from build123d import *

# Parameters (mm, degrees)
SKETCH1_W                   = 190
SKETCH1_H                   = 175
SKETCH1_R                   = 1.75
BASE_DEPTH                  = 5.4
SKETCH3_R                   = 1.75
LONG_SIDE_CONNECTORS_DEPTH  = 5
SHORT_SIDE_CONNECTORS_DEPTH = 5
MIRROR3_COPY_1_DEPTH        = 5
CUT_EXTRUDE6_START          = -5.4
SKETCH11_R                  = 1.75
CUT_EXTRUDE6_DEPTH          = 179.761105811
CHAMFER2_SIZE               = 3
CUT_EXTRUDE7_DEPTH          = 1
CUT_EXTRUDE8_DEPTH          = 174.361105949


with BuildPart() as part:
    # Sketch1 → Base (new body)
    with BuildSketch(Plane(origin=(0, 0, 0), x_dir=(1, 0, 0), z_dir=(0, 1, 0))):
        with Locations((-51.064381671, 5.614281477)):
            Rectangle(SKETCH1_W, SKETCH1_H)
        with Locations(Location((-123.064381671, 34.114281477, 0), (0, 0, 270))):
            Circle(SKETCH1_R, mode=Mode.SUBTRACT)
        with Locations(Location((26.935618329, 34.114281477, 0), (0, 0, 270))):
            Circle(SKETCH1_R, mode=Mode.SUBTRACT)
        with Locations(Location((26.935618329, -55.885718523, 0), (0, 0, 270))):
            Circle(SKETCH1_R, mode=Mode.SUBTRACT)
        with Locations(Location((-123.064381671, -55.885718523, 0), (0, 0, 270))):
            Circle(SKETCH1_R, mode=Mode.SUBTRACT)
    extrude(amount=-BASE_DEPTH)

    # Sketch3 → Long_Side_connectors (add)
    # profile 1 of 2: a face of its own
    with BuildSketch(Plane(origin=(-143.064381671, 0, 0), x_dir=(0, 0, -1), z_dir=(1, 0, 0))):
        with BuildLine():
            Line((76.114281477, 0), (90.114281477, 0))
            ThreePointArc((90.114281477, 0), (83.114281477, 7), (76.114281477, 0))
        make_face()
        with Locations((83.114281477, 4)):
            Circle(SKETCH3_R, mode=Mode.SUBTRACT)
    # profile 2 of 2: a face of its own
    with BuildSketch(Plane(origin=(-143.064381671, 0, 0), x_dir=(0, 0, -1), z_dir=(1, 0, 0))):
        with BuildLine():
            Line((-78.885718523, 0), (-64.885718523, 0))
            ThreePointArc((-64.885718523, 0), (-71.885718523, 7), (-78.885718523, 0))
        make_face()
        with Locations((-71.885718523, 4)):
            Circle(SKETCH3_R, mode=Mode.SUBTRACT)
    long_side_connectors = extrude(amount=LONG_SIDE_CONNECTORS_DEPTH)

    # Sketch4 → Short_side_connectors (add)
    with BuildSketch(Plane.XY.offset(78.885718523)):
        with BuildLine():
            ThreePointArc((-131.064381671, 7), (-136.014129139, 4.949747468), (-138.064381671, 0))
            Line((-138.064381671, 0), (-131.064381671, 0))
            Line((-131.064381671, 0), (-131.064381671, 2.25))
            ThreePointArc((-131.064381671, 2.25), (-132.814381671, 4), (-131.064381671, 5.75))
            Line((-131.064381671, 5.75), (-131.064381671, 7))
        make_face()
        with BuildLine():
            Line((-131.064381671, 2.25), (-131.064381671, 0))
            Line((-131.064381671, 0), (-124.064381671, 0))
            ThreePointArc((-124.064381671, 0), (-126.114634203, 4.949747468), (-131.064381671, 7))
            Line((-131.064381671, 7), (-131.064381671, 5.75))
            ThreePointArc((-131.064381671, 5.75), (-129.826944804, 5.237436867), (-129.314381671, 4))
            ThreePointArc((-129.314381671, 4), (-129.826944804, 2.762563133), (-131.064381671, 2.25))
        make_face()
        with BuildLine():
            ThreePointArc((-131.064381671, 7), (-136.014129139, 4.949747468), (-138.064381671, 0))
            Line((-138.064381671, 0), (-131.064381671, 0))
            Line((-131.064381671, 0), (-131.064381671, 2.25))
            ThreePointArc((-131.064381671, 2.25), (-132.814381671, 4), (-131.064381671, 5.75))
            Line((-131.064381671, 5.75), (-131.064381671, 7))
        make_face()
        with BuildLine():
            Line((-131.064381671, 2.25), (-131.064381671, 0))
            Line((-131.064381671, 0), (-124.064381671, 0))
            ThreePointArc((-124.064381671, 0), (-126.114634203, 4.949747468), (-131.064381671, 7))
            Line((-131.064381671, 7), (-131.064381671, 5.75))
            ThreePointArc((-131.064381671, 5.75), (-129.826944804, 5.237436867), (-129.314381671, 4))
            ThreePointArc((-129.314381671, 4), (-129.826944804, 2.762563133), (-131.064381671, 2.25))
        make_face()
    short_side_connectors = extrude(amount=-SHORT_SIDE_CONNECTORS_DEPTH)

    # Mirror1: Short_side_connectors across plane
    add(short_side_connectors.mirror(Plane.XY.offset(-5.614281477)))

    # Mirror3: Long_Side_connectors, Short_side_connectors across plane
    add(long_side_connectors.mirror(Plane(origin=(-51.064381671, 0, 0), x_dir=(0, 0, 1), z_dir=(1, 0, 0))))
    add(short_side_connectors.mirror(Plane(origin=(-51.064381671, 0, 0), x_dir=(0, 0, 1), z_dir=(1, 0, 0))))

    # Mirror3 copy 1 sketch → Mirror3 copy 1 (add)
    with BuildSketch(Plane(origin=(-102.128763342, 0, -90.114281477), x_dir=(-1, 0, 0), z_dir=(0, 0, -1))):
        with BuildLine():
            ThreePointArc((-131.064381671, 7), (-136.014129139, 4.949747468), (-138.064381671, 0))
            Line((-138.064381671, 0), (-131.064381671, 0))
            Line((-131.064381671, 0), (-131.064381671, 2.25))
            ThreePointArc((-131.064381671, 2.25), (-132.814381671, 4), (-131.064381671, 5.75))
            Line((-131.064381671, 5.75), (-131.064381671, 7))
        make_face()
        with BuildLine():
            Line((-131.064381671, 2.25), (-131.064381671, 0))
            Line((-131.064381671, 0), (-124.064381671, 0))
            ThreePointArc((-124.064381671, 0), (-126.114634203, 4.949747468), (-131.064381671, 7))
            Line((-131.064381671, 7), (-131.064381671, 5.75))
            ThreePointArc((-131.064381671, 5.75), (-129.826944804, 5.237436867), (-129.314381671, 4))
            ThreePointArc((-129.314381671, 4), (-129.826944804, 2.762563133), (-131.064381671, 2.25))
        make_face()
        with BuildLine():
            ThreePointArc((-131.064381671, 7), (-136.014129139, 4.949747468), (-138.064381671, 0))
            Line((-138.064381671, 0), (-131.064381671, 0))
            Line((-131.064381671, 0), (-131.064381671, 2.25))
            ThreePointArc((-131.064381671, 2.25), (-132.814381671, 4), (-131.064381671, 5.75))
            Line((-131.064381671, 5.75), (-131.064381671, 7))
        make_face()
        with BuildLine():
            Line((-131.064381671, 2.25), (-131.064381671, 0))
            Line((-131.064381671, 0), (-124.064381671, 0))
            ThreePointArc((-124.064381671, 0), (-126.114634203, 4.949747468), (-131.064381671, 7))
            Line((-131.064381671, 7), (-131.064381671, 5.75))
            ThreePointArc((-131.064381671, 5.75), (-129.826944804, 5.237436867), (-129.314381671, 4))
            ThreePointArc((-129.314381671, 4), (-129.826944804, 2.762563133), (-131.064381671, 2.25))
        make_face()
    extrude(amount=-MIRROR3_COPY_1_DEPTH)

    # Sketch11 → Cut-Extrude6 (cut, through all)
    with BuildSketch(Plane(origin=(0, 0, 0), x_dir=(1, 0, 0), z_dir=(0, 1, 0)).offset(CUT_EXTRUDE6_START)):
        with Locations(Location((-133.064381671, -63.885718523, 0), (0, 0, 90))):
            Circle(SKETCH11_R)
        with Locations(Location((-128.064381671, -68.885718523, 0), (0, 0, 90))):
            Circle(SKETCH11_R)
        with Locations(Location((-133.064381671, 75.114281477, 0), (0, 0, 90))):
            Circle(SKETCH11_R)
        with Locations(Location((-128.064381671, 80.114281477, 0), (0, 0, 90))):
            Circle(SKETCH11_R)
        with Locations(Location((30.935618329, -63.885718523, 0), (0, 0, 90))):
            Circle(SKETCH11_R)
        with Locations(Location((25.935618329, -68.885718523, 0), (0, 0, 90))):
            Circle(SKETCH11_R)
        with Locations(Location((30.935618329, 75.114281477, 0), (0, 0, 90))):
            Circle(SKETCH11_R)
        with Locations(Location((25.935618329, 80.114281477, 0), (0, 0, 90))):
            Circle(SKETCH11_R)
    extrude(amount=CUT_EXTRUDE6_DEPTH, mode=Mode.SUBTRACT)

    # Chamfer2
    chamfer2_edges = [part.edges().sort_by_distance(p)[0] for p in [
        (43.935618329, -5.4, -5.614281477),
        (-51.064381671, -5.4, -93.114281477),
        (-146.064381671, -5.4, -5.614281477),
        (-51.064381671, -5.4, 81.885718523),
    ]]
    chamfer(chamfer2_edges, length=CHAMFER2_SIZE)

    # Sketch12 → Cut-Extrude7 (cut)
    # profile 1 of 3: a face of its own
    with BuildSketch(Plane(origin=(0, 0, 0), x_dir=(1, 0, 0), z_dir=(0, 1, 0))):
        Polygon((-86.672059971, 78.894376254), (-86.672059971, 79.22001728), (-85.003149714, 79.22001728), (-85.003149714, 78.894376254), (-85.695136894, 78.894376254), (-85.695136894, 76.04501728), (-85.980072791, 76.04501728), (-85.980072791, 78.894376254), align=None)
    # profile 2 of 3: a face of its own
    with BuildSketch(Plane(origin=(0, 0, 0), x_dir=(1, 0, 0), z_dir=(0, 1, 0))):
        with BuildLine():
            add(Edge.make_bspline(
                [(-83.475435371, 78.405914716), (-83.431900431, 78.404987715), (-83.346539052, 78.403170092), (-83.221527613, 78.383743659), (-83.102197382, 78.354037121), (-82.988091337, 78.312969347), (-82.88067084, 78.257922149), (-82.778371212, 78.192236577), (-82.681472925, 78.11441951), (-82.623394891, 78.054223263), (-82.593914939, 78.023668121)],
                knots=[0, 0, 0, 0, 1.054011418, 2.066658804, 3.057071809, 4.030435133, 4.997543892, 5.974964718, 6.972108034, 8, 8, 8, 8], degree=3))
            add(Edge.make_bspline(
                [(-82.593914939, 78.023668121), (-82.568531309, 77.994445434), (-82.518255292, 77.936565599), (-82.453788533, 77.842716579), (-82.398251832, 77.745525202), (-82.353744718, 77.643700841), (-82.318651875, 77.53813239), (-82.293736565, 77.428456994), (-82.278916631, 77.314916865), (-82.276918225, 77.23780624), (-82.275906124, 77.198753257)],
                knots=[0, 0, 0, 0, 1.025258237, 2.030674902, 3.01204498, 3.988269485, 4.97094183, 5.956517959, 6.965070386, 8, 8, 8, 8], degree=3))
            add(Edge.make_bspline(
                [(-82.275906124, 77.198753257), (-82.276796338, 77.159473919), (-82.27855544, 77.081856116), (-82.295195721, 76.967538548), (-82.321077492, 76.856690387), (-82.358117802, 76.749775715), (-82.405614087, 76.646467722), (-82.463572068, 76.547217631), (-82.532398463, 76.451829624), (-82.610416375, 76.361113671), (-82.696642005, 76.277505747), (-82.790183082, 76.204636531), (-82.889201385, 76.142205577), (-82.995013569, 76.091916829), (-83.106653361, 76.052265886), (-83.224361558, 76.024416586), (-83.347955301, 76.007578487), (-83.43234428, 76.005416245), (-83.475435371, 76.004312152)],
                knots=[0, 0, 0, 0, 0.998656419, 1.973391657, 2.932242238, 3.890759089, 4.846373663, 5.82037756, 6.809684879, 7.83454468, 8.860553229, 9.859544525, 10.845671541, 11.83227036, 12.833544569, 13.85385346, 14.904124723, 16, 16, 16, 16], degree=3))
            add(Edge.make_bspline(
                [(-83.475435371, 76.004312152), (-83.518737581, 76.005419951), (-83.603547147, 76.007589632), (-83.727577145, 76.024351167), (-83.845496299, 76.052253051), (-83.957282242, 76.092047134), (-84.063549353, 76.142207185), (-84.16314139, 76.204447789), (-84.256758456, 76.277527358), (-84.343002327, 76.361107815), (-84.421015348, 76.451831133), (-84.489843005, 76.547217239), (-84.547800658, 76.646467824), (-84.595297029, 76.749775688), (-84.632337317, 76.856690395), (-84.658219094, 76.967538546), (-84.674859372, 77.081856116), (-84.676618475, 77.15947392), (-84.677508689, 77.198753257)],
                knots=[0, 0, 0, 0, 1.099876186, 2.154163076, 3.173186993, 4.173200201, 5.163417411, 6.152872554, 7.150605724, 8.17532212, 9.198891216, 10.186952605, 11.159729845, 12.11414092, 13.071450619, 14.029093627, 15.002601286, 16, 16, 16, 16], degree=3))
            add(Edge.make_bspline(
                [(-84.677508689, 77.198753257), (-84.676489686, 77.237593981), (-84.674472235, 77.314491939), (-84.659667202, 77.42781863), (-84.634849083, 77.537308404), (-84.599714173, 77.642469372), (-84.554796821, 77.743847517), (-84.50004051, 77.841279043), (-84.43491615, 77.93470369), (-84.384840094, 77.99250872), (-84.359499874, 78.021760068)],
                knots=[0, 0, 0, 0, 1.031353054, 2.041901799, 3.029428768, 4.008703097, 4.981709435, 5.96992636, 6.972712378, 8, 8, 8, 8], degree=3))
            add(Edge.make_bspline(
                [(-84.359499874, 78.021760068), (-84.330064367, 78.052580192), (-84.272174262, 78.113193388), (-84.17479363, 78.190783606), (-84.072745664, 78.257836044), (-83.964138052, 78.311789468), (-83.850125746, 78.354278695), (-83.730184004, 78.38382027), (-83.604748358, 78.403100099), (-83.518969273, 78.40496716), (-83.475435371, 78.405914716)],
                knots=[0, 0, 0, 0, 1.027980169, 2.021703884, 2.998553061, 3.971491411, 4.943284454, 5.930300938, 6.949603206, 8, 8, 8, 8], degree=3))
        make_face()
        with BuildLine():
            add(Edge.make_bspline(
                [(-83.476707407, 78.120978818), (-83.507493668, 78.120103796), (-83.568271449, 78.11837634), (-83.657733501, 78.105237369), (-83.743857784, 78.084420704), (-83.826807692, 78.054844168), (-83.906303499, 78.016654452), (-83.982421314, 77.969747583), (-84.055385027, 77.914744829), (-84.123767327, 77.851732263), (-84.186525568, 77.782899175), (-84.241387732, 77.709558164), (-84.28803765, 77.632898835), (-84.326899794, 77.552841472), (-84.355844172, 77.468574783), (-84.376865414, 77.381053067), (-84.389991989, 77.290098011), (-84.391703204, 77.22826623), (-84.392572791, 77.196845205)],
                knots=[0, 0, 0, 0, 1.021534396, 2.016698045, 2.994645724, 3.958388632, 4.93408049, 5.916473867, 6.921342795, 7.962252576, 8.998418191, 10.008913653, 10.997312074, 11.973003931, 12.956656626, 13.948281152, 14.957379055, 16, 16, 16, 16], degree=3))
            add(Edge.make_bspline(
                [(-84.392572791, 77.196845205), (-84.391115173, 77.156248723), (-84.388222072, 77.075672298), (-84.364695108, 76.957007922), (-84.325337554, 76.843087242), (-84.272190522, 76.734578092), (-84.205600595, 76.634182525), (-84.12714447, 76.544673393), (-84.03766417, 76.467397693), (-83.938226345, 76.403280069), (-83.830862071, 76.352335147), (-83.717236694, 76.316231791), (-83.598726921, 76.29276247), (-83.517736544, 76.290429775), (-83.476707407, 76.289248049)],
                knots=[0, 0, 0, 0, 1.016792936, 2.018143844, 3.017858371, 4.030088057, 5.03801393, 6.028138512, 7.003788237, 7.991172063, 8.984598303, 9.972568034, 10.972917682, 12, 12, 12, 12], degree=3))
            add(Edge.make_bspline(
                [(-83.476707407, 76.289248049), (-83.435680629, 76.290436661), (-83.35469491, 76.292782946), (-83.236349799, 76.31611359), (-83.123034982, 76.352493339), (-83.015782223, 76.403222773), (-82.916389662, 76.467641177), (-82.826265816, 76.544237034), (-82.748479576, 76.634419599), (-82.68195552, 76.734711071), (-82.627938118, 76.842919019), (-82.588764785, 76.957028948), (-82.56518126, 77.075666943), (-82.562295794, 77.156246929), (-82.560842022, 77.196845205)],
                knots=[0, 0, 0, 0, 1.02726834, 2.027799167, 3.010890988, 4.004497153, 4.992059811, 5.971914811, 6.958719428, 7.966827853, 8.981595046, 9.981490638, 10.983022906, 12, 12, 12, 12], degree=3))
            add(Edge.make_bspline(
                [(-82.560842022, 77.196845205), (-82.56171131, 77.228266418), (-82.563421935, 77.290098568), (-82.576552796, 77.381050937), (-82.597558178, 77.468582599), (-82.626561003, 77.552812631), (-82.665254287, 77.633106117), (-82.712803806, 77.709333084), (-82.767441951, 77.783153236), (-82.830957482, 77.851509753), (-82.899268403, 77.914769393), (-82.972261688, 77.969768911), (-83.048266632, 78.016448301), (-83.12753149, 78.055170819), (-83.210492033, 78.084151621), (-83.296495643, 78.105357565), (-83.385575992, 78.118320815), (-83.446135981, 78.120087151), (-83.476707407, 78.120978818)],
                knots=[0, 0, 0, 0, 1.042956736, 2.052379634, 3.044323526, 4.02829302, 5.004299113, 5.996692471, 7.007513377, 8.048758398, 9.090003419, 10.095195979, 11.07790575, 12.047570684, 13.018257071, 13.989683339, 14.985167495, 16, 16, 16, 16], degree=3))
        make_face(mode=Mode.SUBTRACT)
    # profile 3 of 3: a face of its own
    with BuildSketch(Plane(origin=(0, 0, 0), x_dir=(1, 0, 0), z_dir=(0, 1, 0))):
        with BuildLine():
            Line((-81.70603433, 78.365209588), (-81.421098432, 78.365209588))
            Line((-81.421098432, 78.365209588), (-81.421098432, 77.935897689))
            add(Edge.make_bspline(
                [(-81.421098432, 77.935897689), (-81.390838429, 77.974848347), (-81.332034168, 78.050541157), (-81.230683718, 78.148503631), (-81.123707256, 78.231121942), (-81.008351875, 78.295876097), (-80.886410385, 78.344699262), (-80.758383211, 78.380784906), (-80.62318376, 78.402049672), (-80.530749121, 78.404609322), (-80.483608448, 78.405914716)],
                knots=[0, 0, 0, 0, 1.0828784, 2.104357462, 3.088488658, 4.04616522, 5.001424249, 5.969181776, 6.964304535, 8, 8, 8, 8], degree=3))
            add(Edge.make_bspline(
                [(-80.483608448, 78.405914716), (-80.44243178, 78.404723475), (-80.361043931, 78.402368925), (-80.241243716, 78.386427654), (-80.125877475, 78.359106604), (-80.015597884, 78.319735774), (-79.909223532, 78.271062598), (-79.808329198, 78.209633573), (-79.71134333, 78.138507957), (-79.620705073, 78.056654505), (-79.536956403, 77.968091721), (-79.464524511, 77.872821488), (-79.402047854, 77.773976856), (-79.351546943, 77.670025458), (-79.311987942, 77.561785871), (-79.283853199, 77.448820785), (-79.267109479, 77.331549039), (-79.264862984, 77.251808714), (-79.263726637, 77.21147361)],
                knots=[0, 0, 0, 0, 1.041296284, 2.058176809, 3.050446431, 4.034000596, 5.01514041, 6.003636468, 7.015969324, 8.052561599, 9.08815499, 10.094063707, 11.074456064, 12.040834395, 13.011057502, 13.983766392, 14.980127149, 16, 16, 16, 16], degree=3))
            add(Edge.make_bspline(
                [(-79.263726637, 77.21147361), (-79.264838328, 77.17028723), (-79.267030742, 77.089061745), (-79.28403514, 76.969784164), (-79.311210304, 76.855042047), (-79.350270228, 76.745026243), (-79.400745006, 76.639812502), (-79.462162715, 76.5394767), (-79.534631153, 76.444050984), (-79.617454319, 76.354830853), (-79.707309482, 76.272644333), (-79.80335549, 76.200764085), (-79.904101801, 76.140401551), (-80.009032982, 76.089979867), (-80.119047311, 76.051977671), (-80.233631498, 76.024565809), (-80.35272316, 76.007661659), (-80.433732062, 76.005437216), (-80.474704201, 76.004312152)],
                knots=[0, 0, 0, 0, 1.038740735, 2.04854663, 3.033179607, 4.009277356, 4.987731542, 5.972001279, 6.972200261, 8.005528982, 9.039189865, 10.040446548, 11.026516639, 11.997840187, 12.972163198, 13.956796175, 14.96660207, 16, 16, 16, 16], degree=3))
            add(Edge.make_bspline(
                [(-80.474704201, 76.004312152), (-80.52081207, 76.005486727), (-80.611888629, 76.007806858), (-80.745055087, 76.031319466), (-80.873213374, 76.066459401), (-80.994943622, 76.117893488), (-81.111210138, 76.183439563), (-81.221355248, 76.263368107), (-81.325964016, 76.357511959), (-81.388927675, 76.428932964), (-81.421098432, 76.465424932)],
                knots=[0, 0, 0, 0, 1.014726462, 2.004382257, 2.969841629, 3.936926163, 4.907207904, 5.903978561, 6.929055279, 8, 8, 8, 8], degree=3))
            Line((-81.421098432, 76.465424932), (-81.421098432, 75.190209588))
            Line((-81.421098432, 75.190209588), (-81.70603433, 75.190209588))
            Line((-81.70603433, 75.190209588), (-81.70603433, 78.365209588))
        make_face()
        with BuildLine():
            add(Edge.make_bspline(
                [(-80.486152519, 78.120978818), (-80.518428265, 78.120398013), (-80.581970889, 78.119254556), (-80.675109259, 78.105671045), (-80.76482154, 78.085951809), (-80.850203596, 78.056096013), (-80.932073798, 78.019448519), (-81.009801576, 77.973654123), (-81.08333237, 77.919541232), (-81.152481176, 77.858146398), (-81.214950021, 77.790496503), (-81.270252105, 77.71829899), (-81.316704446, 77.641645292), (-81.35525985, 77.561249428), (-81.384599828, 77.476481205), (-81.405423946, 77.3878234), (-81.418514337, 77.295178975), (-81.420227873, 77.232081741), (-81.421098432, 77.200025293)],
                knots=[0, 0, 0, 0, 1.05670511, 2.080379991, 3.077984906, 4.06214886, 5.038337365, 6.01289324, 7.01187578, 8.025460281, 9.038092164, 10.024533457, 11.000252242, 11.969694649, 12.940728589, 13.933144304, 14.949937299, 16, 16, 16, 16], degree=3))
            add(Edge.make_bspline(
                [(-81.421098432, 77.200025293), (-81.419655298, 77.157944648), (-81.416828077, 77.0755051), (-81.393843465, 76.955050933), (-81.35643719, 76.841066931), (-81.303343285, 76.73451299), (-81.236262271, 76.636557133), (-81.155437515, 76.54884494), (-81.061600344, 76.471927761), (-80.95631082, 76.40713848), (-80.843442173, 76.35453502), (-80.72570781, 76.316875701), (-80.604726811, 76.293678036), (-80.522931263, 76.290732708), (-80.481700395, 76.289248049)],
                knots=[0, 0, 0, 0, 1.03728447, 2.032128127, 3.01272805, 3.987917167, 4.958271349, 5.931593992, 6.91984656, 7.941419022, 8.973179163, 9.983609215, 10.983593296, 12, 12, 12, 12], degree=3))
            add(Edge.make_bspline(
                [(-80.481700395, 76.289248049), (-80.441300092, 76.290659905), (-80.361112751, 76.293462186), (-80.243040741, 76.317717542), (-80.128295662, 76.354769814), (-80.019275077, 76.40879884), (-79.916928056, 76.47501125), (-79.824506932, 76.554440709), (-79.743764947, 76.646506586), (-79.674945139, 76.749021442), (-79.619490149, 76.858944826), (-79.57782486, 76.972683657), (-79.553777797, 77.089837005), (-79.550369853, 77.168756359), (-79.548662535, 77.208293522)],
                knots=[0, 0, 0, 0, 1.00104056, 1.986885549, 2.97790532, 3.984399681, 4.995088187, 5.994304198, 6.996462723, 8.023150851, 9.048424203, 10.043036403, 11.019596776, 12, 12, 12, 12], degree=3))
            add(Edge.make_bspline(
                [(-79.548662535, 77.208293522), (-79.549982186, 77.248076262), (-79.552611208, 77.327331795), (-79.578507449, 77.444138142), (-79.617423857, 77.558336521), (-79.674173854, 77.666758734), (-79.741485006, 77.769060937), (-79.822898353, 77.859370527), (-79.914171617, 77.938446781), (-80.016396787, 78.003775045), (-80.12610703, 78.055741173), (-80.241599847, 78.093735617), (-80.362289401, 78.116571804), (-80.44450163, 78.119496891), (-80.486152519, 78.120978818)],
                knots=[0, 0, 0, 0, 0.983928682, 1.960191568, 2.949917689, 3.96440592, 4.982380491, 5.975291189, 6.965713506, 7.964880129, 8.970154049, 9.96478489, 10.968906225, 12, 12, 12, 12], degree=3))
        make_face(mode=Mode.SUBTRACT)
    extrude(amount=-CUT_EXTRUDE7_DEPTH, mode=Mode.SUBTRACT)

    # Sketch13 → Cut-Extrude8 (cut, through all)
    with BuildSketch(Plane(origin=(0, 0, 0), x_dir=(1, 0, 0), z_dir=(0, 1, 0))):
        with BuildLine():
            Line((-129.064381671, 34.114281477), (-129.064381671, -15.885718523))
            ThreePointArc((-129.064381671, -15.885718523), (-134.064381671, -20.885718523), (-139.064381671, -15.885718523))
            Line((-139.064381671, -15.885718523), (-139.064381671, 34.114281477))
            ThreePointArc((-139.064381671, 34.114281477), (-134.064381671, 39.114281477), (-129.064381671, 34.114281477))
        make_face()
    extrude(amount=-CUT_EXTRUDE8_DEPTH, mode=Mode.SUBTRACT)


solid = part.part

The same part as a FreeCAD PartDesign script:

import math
import FreeCAD as App
import Part
import Sketcher

V = App.Vector
Q = App.Units.Quantity


def edges_at(feature, points):
    """Names of the edges that pass closest to the given points."""
    edges = feature.Shape.Edges
    near = lambda p: min(range(len(edges)), key=lambda i: edges[i].distToShape(Part.Vertex(*p))[0])
    return sorted({f"Edge{near(p) + 1}" for p in points})

doc = App.newDocument("Part")
body = doc.addObject("PartDesign::Body", "Body")

sketch1 = body.newObject("Sketcher::SketchObject", "Sketch")
sketch1.AttachmentSupport = (doc.getObject("XZ_Plane"), [""])
sketch1.MapMode = "FlatFace"
sketch1.addGeometry([
    Part.LineSegment(V(-146.1, -93.1, 0), V(-146.1, 81.9, 0)),
    Part.LineSegment(V(-146.1, 81.9, 0), V(43.9, 81.9, 0)),
    Part.LineSegment(V(43.9, 81.9, 0), V(43.9, -93.1, 0)),
    Part.LineSegment(V(43.9, -93.1, 0), V(-146.1, -93.1, 0)),
    Part.Circle(V(-123.1, 55.9, 0), V(0, 0, 1), 1.8),
    Part.Circle(V(26.9, 55.9, 0), V(0, 0, 1), 1.8),
    Part.Circle(V(-123.1, -34.1, 0), V(0, 0, 1), 1.8),
    Part.Circle(V(26.9, -34.1, 0), V(0, 0, 1), 1.8),
], False)
sketch1.addConstraint([
    Sketcher.Constraint("Coincident", 0, 2, 1, 1),
    Sketcher.Constraint("Coincident", 1, 2, 2, 1),
    Sketcher.Constraint("Coincident", 2, 2, 3, 1),
    Sketcher.Constraint("Coincident", 3, 2, 0, 1),
    Sketcher.Constraint("Vertical", 0),
    Sketcher.Constraint("Horizontal", 1),
    Sketcher.Constraint("Vertical", 2),
    Sketcher.Constraint("Horizontal", 3),
    Sketcher.Constraint("Equal", 4, 5),
    Sketcher.Constraint("Equal", 5, 6),
    Sketcher.Constraint("Equal", 6, 7),
    Sketcher.Constraint("Horizontal", 4, 3, 5, 3),
    Sketcher.Constraint("Horizontal", 6, 3, 7, 3),
    Sketcher.Constraint("Vertical", 4, 3, 6, 3),
    Sketcher.Constraint("Vertical", 5, 3, 7, 3),
    Sketcher.Constraint("Diameter", 4, Q("3.5 mm")),
    Sketcher.Constraint("DistanceX", 1, 1, 1, 2, Q("190 mm")),
    Sketcher.Constraint("DistanceY", 0, 1, 0, 2, Q("175 mm")),
    Sketcher.Constraint("DistanceX", 4, 3, 5, 3, Q("150 mm")),
    Sketcher.Constraint("DistanceY", 6, 3, 4, 3, Q("90 mm")),
    Sketcher.Constraint("DistanceX", 0, 2, 4, 3, Q("23 mm")),
    Sketcher.Constraint("DistanceY", 4, 3, 0, 2, Q("26 mm")),
    Sketcher.Constraint("DistanceX", 4, 3, -1, 1, Q("123.064382 mm")),
    Sketcher.Constraint("DistanceY", -1, 1, 4, 3, Q("55.885719 mm")),
])
pad1 = body.newObject("PartDesign::Pad", "Pad")
pad1.Profile = sketch1
pad1.Length = 5.4

sketch2 = body.newObject("Sketcher::SketchObject", "Sketch001")
sketch2.AttachmentSupport = (doc.getObject("YZ_Plane"), [""])
sketch2.MapMode = "FlatFace"
sketch2.AttachmentOffset = App.Placement(V(0, 0, -143.064382), App.Rotation())
sketch2.addGeometry([
    Part.LineSegment(V(0, -76.1, 0), V(0, -90.1, 0)),
    Part.ArcOfCircle(Part.Circle(V(0, -83.1, 0), V(0, 0, 1), 7), math.radians(-90), math.radians(90)),
    Part.Circle(V(4, -83.1, 0), V(0, 0, 1), 1.8),
    Part.LineSegment(V(0, 78.9, 0), V(0, 64.9, 0)),
    Part.ArcOfCircle(Part.Circle(V(0, 71.9, 0), V(0, 0, 1), 7), math.radians(-90), math.radians(90)),
    Part.Circle(V(4, 71.9, 0), V(0, 0, 1), 1.8),
], False)
sketch2.addConstraint([
    Sketcher.Constraint("Coincident", 0, 1, 1, 2),
    Sketcher.Constraint("Coincident", 1, 1, 0, 2),
    Sketcher.Constraint("Coincident", 3, 1, 4, 2),
    Sketcher.Constraint("Coincident", 4, 1, 3, 2),
    Sketcher.Constraint("Vertical", 0),
    Sketcher.Constraint("Vertical", 3),
    Sketcher.Constraint("Equal", 1, 4),
    Sketcher.Constraint("Equal", 2, 5),
    Sketcher.Constraint("PointOnObject", 1, 3, -2),
    Sketcher.Constraint("PointOnObject", 4, 3, -2),
    Sketcher.Constraint("PointOnObject", 0, 1, -2),
    Sketcher.Constraint("PointOnObject", 3, 1, -2),
    Sketcher.Constraint("Horizontal", 1, 3, 2, 3),
    Sketcher.Constraint("Horizontal", 4, 3, 5, 3),
    Sketcher.Constraint("Vertical", 2, 3, 5, 3),
    Sketcher.Constraint("Radius", 1, Q("7 mm")),
    Sketcher.Constraint("Diameter", 2, Q("3.5 mm")),
    Sketcher.Constraint("DistanceX", -1, 1, 2, 3, Q("4 mm")),
    Sketcher.Constraint("DistanceY", 1, 3, 4, 3, Q("155 mm")),
    Sketcher.Constraint("DistanceY", 1, 3, -1, 1, Q("83.114281 mm")),
])
pad2 = body.newObject("PartDesign::Pad", "Pad001")
pad2.Profile = sketch2
pad2.Length = 5

sketch3 = body.newObject("Sketcher::SketchObject", "Sketch002")
sketch3.AttachmentSupport = (doc.getObject("XY_Plane"), [""])
sketch3.MapMode = "FlatFace"
sketch3.AttachmentOffset = App.Placement(V(0, 0, 78.885719), App.Rotation())
sketch3.addGeometry([
    Part.LineSegment(V(-138.1, 0, 0), V(-124.1, 0, 0)),
    Part.ArcOfCircle(Part.Circle(V(-131.1, 0, 0), V(0, 0, 1), 7), math.radians(0), math.radians(90)),
    Part.ArcOfCircle(Part.Circle(V(-131.1, 0, 0), V(0, 0, 1), 7), math.radians(90), math.radians(180)),
    Part.ArcOfCircle(Part.Circle(V(-131.1, 4, 0), V(0, 0, 1), 1.8), math.radians(90), math.radians(270)),
    Part.ArcOfCircle(Part.Circle(V(-131.1, 4, 0), V(0, 0, 1), 1.8), math.radians(0), math.radians(90)),
    Part.ArcOfCircle(Part.Circle(V(-131.1, 4, 0), V(0, 0, 1), 1.8), math.radians(-90), math.radians(0)),
], False)
sketch3.addConstraint([
    Sketcher.Constraint("Coincident", 0, 2, 1, 1),
    Sketcher.Constraint("Tangent", 1, 2, 2, 1),
    Sketcher.Constraint("Coincident", 2, 2, 0, 1),
    Sketcher.Constraint("Tangent", 3, 1, 4, 2),
    Sketcher.Constraint("Tangent", 4, 1, 5, 2),
    Sketcher.Constraint("Tangent", 5, 1, 3, 2),
    Sketcher.Constraint("Horizontal", 0),
    Sketcher.Constraint("Equal", 1, 2),
    Sketcher.Constraint("PointOnObject", 1, 3, -1),
    Sketcher.Constraint("PointOnObject", 0, 2, -1),
    Sketcher.Constraint("Horizontal", 5, 3, 4, 1),
    Sketcher.Constraint("Vertical", 2, 3, 3, 3),
    Sketcher.Constraint("Vertical", 5, 3, 1, 2),
    Sketcher.Constraint("Vertical", 1, 2, 3, 1),
    Sketcher.Constraint("Vertical", 3, 1, 5, 1),
    Sketcher.Constraint("Radius", 1, Q("7 mm")),
    Sketcher.Constraint("Radius", 3, Q("1.75 mm")),
    Sketcher.Constraint("DistanceY", -1, 1, 3, 3, Q("4 mm")),
    Sketcher.Constraint("DistanceX", 1, 3, -1, 1, Q("131.064382 mm")),
])
pad3 = body.newObject("PartDesign::Pad", "Pad002")
pad3.Profile = sketch3
pad3.Length = 5
pad3.Reversed = True
doc.recompute()

datumplane = body.newObject("PartDesign::Plane", "DatumPlane")
datumplane.AttachmentSupport = (doc.getObject("XY_Plane"), [""])
datumplane.MapMode = "FlatFace"
datumplane.AttachmentOffset = App.Placement(V(0, 0, -5.614281), App.Rotation())
mirrored = body.newObject("PartDesign::Mirrored", "Mirrored")
mirrored.Originals = [pad3]
mirrored.MirrorPlane = (datumplane, [""])
body.Tip = mirrored
doc.recompute()

datumplane2 = body.newObject("PartDesign::Plane", "DatumPlane001")
datumplane2.AttachmentSupport = (doc.getObject("YZ_Plane"), [""])
datumplane2.MapMode = "FlatFace"
datumplane2.AttachmentOffset = App.Placement(V(0, 0, -51.064382), App.Rotation())
mirrored2 = body.newObject("PartDesign::Mirrored", "Mirrored001")
mirrored2.Originals = [pad2, pad3]
mirrored2.MirrorPlane = (datumplane2, [""])
body.Tip = mirrored2

sketch4 = body.newObject("Sketcher::SketchObject", "Sketch003")
sketch4.AttachmentSupport = (doc.getObject("XY_Plane"), [""])
sketch4.MapMode = "FlatFace"
sketch4.AttachmentOffset = App.Placement(V(0, 0, -90.114281), App.Rotation())
sketch4.addGeometry([
    Part.LineSegment(V(35.9, 0, 0), V(21.9, 0, 0)),
    Part.ArcOfCircle(Part.Circle(V(28.9, 0, 0), V(0, 0, 1), 7), math.radians(90), math.radians(180)),
    Part.ArcOfCircle(Part.Circle(V(28.9, 0, 0), V(0, 0, 1), 7), math.radians(0), math.radians(90)),
    Part.ArcOfCircle(Part.Circle(V(28.9, 4, 0), V(0, 0, 1), 1.8), math.radians(-90), math.radians(90)),
    Part.ArcOfCircle(Part.Circle(V(28.9, 4, 0), V(0, 0, 1), 1.8), math.radians(90), math.radians(180)),
    Part.ArcOfCircle(Part.Circle(V(28.9, 4, 0), V(0, 0, 1), 1.8), math.radians(180), math.radians(270)),
], False)
sketch4.addConstraint([
    Sketcher.Constraint("Coincident", 0, 2, 1, 2),
    Sketcher.Constraint("Tangent", 1, 1, 2, 2),
    Sketcher.Constraint("Coincident", 2, 1, 0, 1),
    Sketcher.Constraint("Tangent", 3, 2, 4, 1),
    Sketcher.Constraint("Tangent", 4, 2, 5, 1),
    Sketcher.Constraint("Tangent", 5, 2, 3, 1),
    Sketcher.Constraint("Horizontal", 0),
    Sketcher.Constraint("Equal", 1, 2),
    Sketcher.Constraint("PointOnObject", 1, 3, -1),
    Sketcher.Constraint("PointOnObject", 0, 2, -1),
    Sketcher.Constraint("Horizontal", 5, 3, 4, 2),
    Sketcher.Constraint("Vertical", 2, 3, 3, 3),
    Sketcher.Constraint("Vertical", 5, 3, 1, 1),
    Sketcher.Constraint("Vertical", 1, 1, 3, 2),
    Sketcher.Constraint("Vertical", 3, 2, 5, 2),
    Sketcher.Constraint("Radius", 1, Q("7 mm")),
    Sketcher.Constraint("Radius", 3, Q("1.75 mm")),
    Sketcher.Constraint("DistanceY", -1, 1, 3, 3, Q("4 mm")),
    Sketcher.Constraint("DistanceX", -1, 1, 1, 3, Q("28.935618 mm")),
])
pad4 = body.newObject("PartDesign::Pad", "Pad003")
pad4.Profile = sketch4
pad4.Length = 5

sketch5 = body.newObject("Sketcher::SketchObject", "Sketch004")
sketch5.AttachmentSupport = (doc.getObject("XZ_Plane"), [""])
sketch5.MapMode = "FlatFace"
sketch5.AttachmentOffset = App.Placement(V(0, 0, 5.4), App.Rotation())
sketch5.addGeometry([
    Part.Circle(V(-133.1, 63.9, 0), V(0, 0, 1), 1.8),
    Part.Circle(V(-128.1, 68.9, 0), V(0, 0, 1), 1.8),
    Part.Circle(V(-133.1, -75.1, 0), V(0, 0, 1), 1.8),
    Part.Circle(V(-128.1, -80.1, 0), V(0, 0, 1), 1.8),
    Part.Circle(V(30.9, 63.9, 0), V(0, 0, 1), 1.8),
    Part.Circle(V(25.9, 68.9, 0), V(0, 0, 1), 1.8),
    Part.Circle(V(30.9, -75.1, 0), V(0, 0, 1), 1.8),
    Part.Circle(V(25.9, -80.1, 0), V(0, 0, 1), 1.8),
], False)
sketch5.addConstraint([
    Sketcher.Constraint("Equal", 0, 1),
    Sketcher.Constraint("Equal", 1, 2),
    Sketcher.Constraint("Equal", 2, 3),
    Sketcher.Constraint("Equal", 3, 4),
    Sketcher.Constraint("Equal", 4, 5),
    Sketcher.Constraint("Equal", 5, 6),
    Sketcher.Constraint("Equal", 6, 7),
    Sketcher.Constraint("Horizontal", 0, 3, 4, 3),
    Sketcher.Constraint("Horizontal", 1, 3, 5, 3),
    Sketcher.Constraint("Horizontal", 2, 3, 6, 3),
    Sketcher.Constraint("Horizontal", 3, 3, 7, 3),
    Sketcher.Constraint("Vertical", 0, 3, 2, 3),
    Sketcher.Constraint("Vertical", 1, 3, 3, 3),
    Sketcher.Constraint("Vertical", 4, 3, 6, 3),
    Sketcher.Constraint("Vertical", 5, 3, 7, 3),
    Sketcher.Constraint("Diameter", 0, Q("3.5 mm")),
    Sketcher.Constraint("DistanceX", 0, 3, 1, 3, Q("5 mm")),
    Sketcher.Constraint("DistanceY", 0, 3, 1, 3, Q("5 mm")),
    Sketcher.Constraint("DistanceY", 2, 3, 0, 3, Q("139 mm")),
    Sketcher.Constraint("DistanceY", 3, 3, 2, 3, Q("5 mm")),
    Sketcher.Constraint("DistanceX", 1, 3, 4, 3, Q("159 mm")),
    Sketcher.Constraint("DistanceX", 5, 3, 4, 3, Q("5 mm")),
    Sketcher.Constraint("DistanceX", 0, 3, -1, 1, Q("133.064382 mm")),
    Sketcher.Constraint("DistanceY", -1, 1, 0, 3, Q("63.885719 mm")),
])
pocket1 = body.newObject("PartDesign::Pocket", "Pocket")
pocket1.Profile = sketch5
pocket1.Type = "ThroughAll"
doc.recompute()

chamfer = body.newObject("PartDesign::Chamfer", "Chamfer")
chamfer.Base = (pocket1, edges_at(pocket1, [
    (43.936, -5.4, -5.614),
    (-51.064, -5.4, -93.114),
    (-146.064, -5.4, -5.614),
    (-51.064, -5.4, 81.886),
]))
chamfer.Size = 3

sketch6 = body.newObject("Sketcher::SketchObject", "Sketch005")
sketch6.AttachmentSupport = (doc.getObject("XZ_Plane"), [""])
sketch6.MapMode = "FlatFace"
sketch6.addGeometry([
    Part.LineSegment(V(-86.67206, -79.220017, 0), V(-86.67206, -78.894376, 0)),
    Part.LineSegment(V(-86.67206, -78.894376, 0), V(-85.980073, -78.894376, 0)),
    Part.LineSegment(V(-85.980073, -78.894376, 0), V(-85.980073, -76.045017, 0)),
    Part.LineSegment(V(-85.980073, -76.045017, 0), V(-85.695137, -76.045017, 0)),
    Part.LineSegment(V(-85.695137, -76.045017, 0), V(-85.695137, -78.894376, 0)),
    Part.LineSegment(V(-85.695137, -78.894376, 0), V(-85.00315, -78.894376, 0)),
    Part.LineSegment(V(-85.00315, -78.894376, 0), V(-85.00315, -79.220017, 0)),
    Part.LineSegment(V(-85.00315, -79.220017, 0), V(-86.67206, -79.220017, 0)),
    Part.BSplineCurve([V(-83.475435, -78.405915, 0), V(-83.4319, -78.404988, 0), V(-83.346539, -78.40317, 0), V(-83.221528, -78.383744, 0), V(-83.102197, -78.354037, 0), V(-82.988091, -78.312969, 0), V(-82.880671, -78.257922, 0), V(-82.778371, -78.192237, 0), V(-82.681473, -78.11442, 0), V(-82.623395, -78.054223, 0), V(-82.593915, -78.023668, 0)], [4, 1, 1, 1, 1, 1, 1, 1, 4], [0, 1.054011418, 2.066658804, 3.057071809, 4.030435133, 4.997543892, 5.974964718, 6.972108034, 8], False, 3, [1, 1, 1, 1, 1, 1, 1, 1, 1, 1, 1], False),
    Part.BSplineCurve([V(-84.3595, -78.02176, 0), V(-84.330064, -78.05258, 0), V(-84.272174, -78.113193, 0), V(-84.174794, -78.190784, 0), V(-84.072746, -78.257836, 0), V(-83.964138, -78.311789, 0), V(-83.850126, -78.354279, 0), V(-83.730184, -78.38382, 0), V(-83.604748, -78.4031, 0), V(-83.518969, -78.404967, 0), V(-83.475435, -78.405915, 0)], [4, 1, 1, 1, 1, 1, 1, 1, 4], [0, 1.027980169, 2.021703884, 2.998553061, 3.971491411, 4.943284454, 5.930300938, 6.949603206, 8], False, 3, [1, 1, 1, 1, 1, 1, 1, 1, 1, 1, 1], False),
    Part.BSplineCurve([V(-84.677509, -77.198753, 0), V(-84.67649, -77.237594, 0), V(-84.674472, -77.314492, 0), V(-84.659667, -77.427819, 0), V(-84.634849, -77.537308, 0), V(-84.599714, -77.642469, 0), V(-84.554797, -77.743848, 0), V(-84.500041, -77.841279, 0), V(-84.434916, -77.934704, 0), V(-84.38484, -77.992509, 0), V(-84.3595, -78.02176, 0)], [4, 1, 1, 1, 1, 1, 1, 1, 4], [0, 1.031353054, 2.041901799, 3.029428768, 4.008703097, 4.981709435, 5.96992636, 6.972712378, 8], False, 3, [1, 1, 1, 1, 1, 1, 1, 1, 1, 1, 1], False),
    Part.BSplineCurve([V(-83.475435, -76.004312, 0), V(-83.518738, -76.00542, 0), V(-83.603547, -76.00759, 0), V(-83.727577, -76.024351, 0), V(-83.845496, -76.052253, 0), V(-83.957282, -76.092047, 0), V(-84.063549, -76.142207, 0), V(-84.163141, -76.204448, 0), V(-84.256758, -76.277527, 0), V(-84.343002, -76.361108, 0), V(-84.421015, -76.451831, 0), V(-84.489843, -76.547217, 0), V(-84.547801, -76.646468, 0), V(-84.595297, -76.749776, 0), V(-84.632337, -76.85669, 0), V(-84.658219, -76.967539, 0), V(-84.674859, -77.081856, 0), V(-84.676618, -77.159474, 0), V(-84.677509, -77.198753, 0)], [4, 1, 1, 1, 1, 1, 1, 1, 1, 1, 1, 1, 1, 1, 1, 1, 4], [0, 1.099876186, 2.154163076, 3.173186993, 4.173200201, 5.163417411, 6.152872554, 7.150605724, 8.17532212, 9.198891216, 10.186952605, 11.159729845, 12.11414092, 13.071450619, 14.029093627, 15.002601286, 16], False, 3, [1, 1, 1, 1, 1, 1, 1, 1, 1, 1, 1, 1, 1, 1, 1, 1, 1, 1, 1], False),
    Part.BSplineCurve([V(-82.275906, -77.198753, 0), V(-82.276796, -77.159474, 0), V(-82.278555, -77.081856, 0), V(-82.295196, -76.967539, 0), V(-82.321077, -76.85669, 0), V(-82.358118, -76.749776, 0), V(-82.405614, -76.646468, 0), V(-82.463572, -76.547218, 0), V(-82.532398, -76.45183, 0), V(-82.610416, -76.361114, 0), V(-82.696642, -76.277506, 0), V(-82.790183, -76.204637, 0), V(-82.889201, -76.142206, 0), V(-82.995014, -76.091917, 0), V(-83.106653, -76.052266, 0), V(-83.224362, -76.024417, 0), V(-83.347955, -76.007578, 0), V(-83.432344, -76.005416, 0), V(-83.475435, -76.004312, 0)], [4, 1, 1, 1, 1, 1, 1, 1, 1, 1, 1, 1, 1, 1, 1, 1, 4], [0, 0.998656419, 1.973391657, 2.932242238, 3.890759089, 4.846373663, 5.82037756, 6.809684879, 7.83454468, 8.860553229, 9.859544525, 10.845671541, 11.83227036, 12.833544569, 13.85385346, 14.904124723, 16], False, 3, [1, 1, 1, 1, 1, 1, 1, 1, 1, 1, 1, 1, 1, 1, 1, 1, 1, 1, 1], False),
    Part.BSplineCurve([V(-82.593915, -78.023668, 0), V(-82.568531, -77.994445, 0), V(-82.518255, -77.936566, 0), V(-82.453789, -77.842717, 0), V(-82.398252, -77.745525, 0), V(-82.353745, -77.643701, 0), V(-82.318652, -77.538132, 0), V(-82.293737, -77.428457, 0), V(-82.278917, -77.314917, 0), V(-82.276918, -77.237806, 0), V(-82.275906, -77.198753, 0)], [4, 1, 1, 1, 1, 1, 1, 1, 4], [0, 1.025258237, 2.030674902, 3.01204498, 3.988269485, 4.97094183, 5.956517959, 6.965070386, 8], False, 3, [1, 1, 1, 1, 1, 1, 1, 1, 1, 1, 1], False),
    Part.BSplineCurve([V(-82.560842, -77.196845, 0), V(-82.561711, -77.228266, 0), V(-82.563422, -77.290099, 0), V(-82.576553, -77.381051, 0), V(-82.597558, -77.468583, 0), V(-82.626561, -77.552813, 0), V(-82.665254, -77.633106, 0), V(-82.712804, -77.709333, 0), V(-82.767442, -77.783153, 0), V(-82.830957, -77.85151, 0), V(-82.899268, -77.914769, 0), V(-82.972262, -77.969769, 0), V(-83.048267, -78.016448, 0), V(-83.127531, -78.055171, 0), V(-83.210492, -78.084152, 0), V(-83.296496, -78.105358, 0), V(-83.385576, -78.118321, 0), V(-83.446136, -78.120087, 0), V(-83.476707, -78.120979, 0)], [4, 1, 1, 1, 1, 1, 1, 1, 1, 1, 1, 1, 1, 1, 1, 1, 4], [0, 1.042956736, 2.052379634, 3.044323526, 4.02829302, 5.004299113, 5.996692471, 7.007513377, 8.048758398, 9.090003419, 10.095195979, 11.07790575, 12.047570684, 13.018257071, 13.989683339, 14.985167495, 16], False, 3, [1, 1, 1, 1, 1, 1, 1, 1, 1, 1, 1, 1, 1, 1, 1, 1, 1, 1, 1], False),
    Part.BSplineCurve([V(-83.476707, -76.289248, 0), V(-83.435681, -76.290437, 0), V(-83.354695, -76.292783, 0), V(-83.23635, -76.316114, 0), V(-83.123035, -76.352493, 0), V(-83.015782, -76.403223, 0), V(-82.91639, -76.467641, 0), V(-82.826266, -76.544237, 0), V(-82.74848, -76.63442, 0), V(-82.681956, -76.734711, 0), V(-82.627938, -76.842919, 0), V(-82.588765, -76.957029, 0), V(-82.565181, -77.075667, 0), V(-82.562296, -77.156247, 0), V(-82.560842, -77.196845, 0)], [4, 1, 1, 1, 1, 1, 1, 1, 1, 1, 1, 1, 4], [0, 1.02726834, 2.027799167, 3.010890988, 4.004497153, 4.992059811, 5.971914811, 6.958719428, 7.966827853, 8.981595046, 9.981490638, 10.983022906, 12], False, 3, [1, 1, 1, 1, 1, 1, 1, 1, 1, 1, 1, 1, 1, 1, 1], False),
    Part.BSplineCurve([V(-84.392573, -77.196845, 0), V(-84.391115, -77.156249, 0), V(-84.388222, -77.075672, 0), V(-84.364695, -76.957008, 0), V(-84.325338, -76.843087, 0), V(-84.272191, -76.734578, 0), V(-84.205601, -76.634183, 0), V(-84.127144, -76.544673, 0), V(-84.037664, -76.467398, 0), V(-83.938226, -76.40328, 0), V(-83.830862, -76.352335, 0), V(-83.717237, -76.316232, 0), V(-83.598727, -76.292762, 0), V(-83.517737, -76.29043, 0), V(-83.476707, -76.289248, 0)], [4, 1, 1, 1, 1, 1, 1, 1, 1, 1, 1, 1, 4], [0, 1.016792936, 2.018143844, 3.017858371, 4.030088057, 5.03801393, 6.028138512, 7.003788237, 7.991172063, 8.984598303, 9.972568034, 10.972917682, 12], False, 3, [1, 1, 1, 1, 1, 1, 1, 1, 1, 1, 1, 1, 1, 1, 1], False),
    Part.BSplineCurve([V(-83.476707, -78.120979, 0), V(-83.507494, -78.120104, 0), V(-83.568271, -78.118376, 0), V(-83.657734, -78.105237, 0), V(-83.743858, -78.084421, 0), V(-83.826808, -78.054844, 0), V(-83.906303, -78.016654, 0), V(-83.982421, -77.969748, 0), V(-84.055385, -77.914745, 0), V(-84.123767, -77.851732, 0), V(-84.186526, -77.782899, 0), V(-84.241388, -77.709558, 0), V(-84.288038, -77.632899, 0), V(-84.3269, -77.552841, 0), V(-84.355844, -77.468575, 0), V(-84.376865, -77.381053, 0), V(-84.389992, -77.290098, 0), V(-84.391703, -77.228266, 0), V(-84.392573, -77.196845, 0)], [4, 1, 1, 1, 1, 1, 1, 1, 1, 1, 1, 1, 1, 1, 1, 1, 4], [0, 1.021534396, 2.016698045, 2.994645724, 3.958388632, 4.93408049, 5.916473867, 6.921342795, 7.962252576, 8.998418191, 10.008913653, 10.997312074, 11.973003931, 12.956656626, 13.948281152, 14.957379055, 16], False, 3, [1, 1, 1, 1, 1, 1, 1, 1, 1, 1, 1, 1, 1, 1, 1, 1, 1, 1, 1], False),
    Part.LineSegment(V(-81.421098, -78.36521, 0), V(-81.706034, -78.36521, 0)),
    Part.LineSegment(V(-81.706034, -78.36521, 0), V(-81.706034, -75.19021, 0)),
    Part.LineSegment(V(-81.706034, -75.19021, 0), V(-81.421098, -75.19021, 0)),
    Part.LineSegment(V(-81.421098, -75.19021, 0), V(-81.421098, -76.465425, 0)),
    Part.BSplineCurve([V(-80.474704, -76.004312, 0), V(-80.520812, -76.005487, 0), V(-80.611889, -76.007807, 0), V(-80.745055, -76.031319, 0), V(-80.873213, -76.066459, 0), V(-80.994944, -76.117893, 0), V(-81.11121, -76.18344, 0), V(-81.221355, -76.263368, 0), V(-81.325964, -76.357512, 0), V(-81.388928, -76.428933, 0), V(-81.421098, -76.465425, 0)], [4, 1, 1, 1, 1, 1, 1, 1, 4], [0, 1.014726462, 2.004382257, 2.969841629, 3.936926163, 4.907207904, 5.903978561, 6.929055279, 8], False, 3, [1, 1, 1, 1, 1, 1, 1, 1, 1, 1, 1], False),
    Part.BSplineCurve([V(-79.263727, -77.211474, 0), V(-79.264838, -77.170287, 0), V(-79.267031, -77.089062, 0), V(-79.284035, -76.969784, 0), V(-79.31121, -76.855042, 0), V(-79.35027, -76.745026, 0), V(-79.400745, -76.639813, 0), V(-79.462163, -76.539477, 0), V(-79.534631, -76.444051, 0), V(-79.617454, -76.354831, 0), V(-79.707309, -76.272644, 0), V(-79.803355, -76.200764, 0), V(-79.904102, -76.140402, 0), V(-80.009033, -76.08998, 0), V(-80.119047, -76.051978, 0), V(-80.233631, -76.024566, 0), V(-80.352723, -76.007662, 0), V(-80.433732, -76.005437, 0), V(-80.474704, -76.004312, 0)], [4, 1, 1, 1, 1, 1, 1, 1, 1, 1, 1, 1, 1, 1, 1, 1, 4], [0, 1.038740735, 2.04854663, 3.033179607, 4.009277356, 4.987731542, 5.972001279, 6.972200261, 8.005528982, 9.039189865, 10.040446548, 11.026516639, 11.997840187, 12.972163198, 13.956796175, 14.96660207, 16], False, 3, [1, 1, 1, 1, 1, 1, 1, 1, 1, 1, 1, 1, 1, 1, 1, 1, 1, 1, 1], False),
    Part.BSplineCurve([V(-80.483608, -78.405915, 0), V(-80.442432, -78.404723, 0), V(-80.361044, -78.402369, 0), V(-80.241244, -78.386428, 0), V(-80.125877, -78.359107, 0), V(-80.015598, -78.319736, 0), V(-79.909224, -78.271063, 0), V(-79.808329, -78.209634, 0), V(-79.711343, -78.138508, 0), V(-79.620705, -78.056655, 0), V(-79.536956, -77.968092, 0), V(-79.464525, -77.872821, 0), V(-79.402048, -77.773977, 0), V(-79.351547, -77.670025, 0), V(-79.311988, -77.561786, 0), V(-79.283853, -77.448821, 0), V(-79.267109, -77.331549, 0), V(-79.264863, -77.251809, 0), V(-79.263727, -77.211474, 0)], [4, 1, 1, 1, 1, 1, 1, 1, 1, 1, 1, 1, 1, 1, 1, 1, 4], [0, 1.041296284, 2.058176809, 3.050446431, 4.034000596, 5.01514041, 6.003636468, 7.015969324, 8.052561599, 9.08815499, 10.094063707, 11.074456064, 12.040834395, 13.011057502, 13.983766392, 14.980127149, 16], False, 3, [1, 1, 1, 1, 1, 1, 1, 1, 1, 1, 1, 1, 1, 1, 1, 1, 1, 1, 1], False),
    Part.BSplineCurve([V(-81.421098, -77.935898, 0), V(-81.390838, -77.974848, 0), V(-81.332034, -78.050541, 0), V(-81.230684, -78.148504, 0), V(-81.123707, -78.231122, 0), V(-81.008352, -78.295876, 0), V(-80.88641, -78.344699, 0), V(-80.758383, -78.380785, 0), V(-80.623184, -78.40205, 0), V(-80.530749, -78.404609, 0), V(-80.483608, -78.405915, 0)], [4, 1, 1, 1, 1, 1, 1, 1, 4], [0, 1.0828784, 2.104357462, 3.088488658, 4.04616522, 5.001424249, 5.969181776, 6.964304535, 8], False, 3, [1, 1, 1, 1, 1, 1, 1, 1, 1, 1, 1], False),
    Part.LineSegment(V(-81.421098, -77.935898, 0), V(-81.421098, -78.36521, 0)),
    Part.BSplineCurve([V(-79.548663, -77.208294, 0), V(-79.549982, -77.248076, 0), V(-79.552611, -77.327332, 0), V(-79.578507, -77.444138, 0), V(-79.617424, -77.558337, 0), V(-79.674174, -77.666759, 0), V(-79.741485, -77.769061, 0), V(-79.822898, -77.859371, 0), V(-79.914172, -77.938447, 0), V(-80.016397, -78.003775, 0), V(-80.126107, -78.055741, 0), V(-80.2416, -78.093736, 0), V(-80.362289, -78.116572, 0), V(-80.444502, -78.119497, 0), V(-80.486153, -78.120979, 0)], [4, 1, 1, 1, 1, 1, 1, 1, 1, 1, 1, 1, 4], [0, 0.983928682, 1.960191568, 2.949917689, 3.96440592, 4.982380491, 5.975291189, 6.965713506, 7.964880129, 8.970154049, 9.96478489, 10.968906225, 12], False, 3, [1, 1, 1, 1, 1, 1, 1, 1, 1, 1, 1, 1, 1, 1, 1], False),
    Part.BSplineCurve([V(-80.4817, -76.289248, 0), V(-80.4413, -76.29066, 0), V(-80.361113, -76.293462, 0), V(-80.243041, -76.317718, 0), V(-80.128296, -76.35477, 0), V(-80.019275, -76.408799, 0), V(-79.916928, -76.475011, 0), V(-79.824507, -76.554441, 0), V(-79.743765, -76.646507, 0), V(-79.674945, -76.749021, 0), V(-79.61949, -76.858945, 0), V(-79.577825, -76.972684, 0), V(-79.553778, -77.089837, 0), V(-79.55037, -77.168756, 0), V(-79.548663, -77.208294, 0)], [4, 1, 1, 1, 1, 1, 1, 1, 1, 1, 1, 1, 4], [0, 1.00104056, 1.986885549, 2.97790532, 3.984399681, 4.995088187, 5.994304198, 6.996462723, 8.023150851, 9.048424203, 10.043036403, 11.019596776, 12], False, 3, [1, 1, 1, 1, 1, 1, 1, 1, 1, 1, 1, 1, 1, 1, 1], False),
    Part.BSplineCurve([V(-81.421098, -77.200025, 0), V(-81.419655, -77.157945, 0), V(-81.416828, -77.075505, 0), V(-81.393843, -76.955051, 0), V(-81.356437, -76.841067, 0), V(-81.303343, -76.734513, 0), V(-81.236262, -76.636557, 0), V(-81.155438, -76.548845, 0), V(-81.0616, -76.471928, 0), V(-80.956311, -76.407138, 0), V(-80.843442, -76.354535, 0), V(-80.725708, -76.316876, 0), V(-80.604727, -76.293678, 0), V(-80.522931, -76.290733, 0), V(-80.4817, -76.289248, 0)], [4, 1, 1, 1, 1, 1, 1, 1, 1, 1, 1, 1, 4], [0, 1.03728447, 2.032128127, 3.01272805, 3.987917167, 4.958271349, 5.931593992, 6.91984656, 7.941419022, 8.973179163, 9.983609215, 10.983593296, 12], False, 3, [1, 1, 1, 1, 1, 1, 1, 1, 1, 1, 1, 1, 1, 1, 1], False),
    Part.BSplineCurve([V(-80.486153, -78.120979, 0), V(-80.518428, -78.120398, 0), V(-80.581971, -78.119255, 0), V(-80.675109, -78.105671, 0), V(-80.764822, -78.085952, 0), V(-80.850204, -78.056096, 0), V(-80.932074, -78.019449, 0), V(-81.009802, -77.973654, 0), V(-81.083332, -77.919541, 0), V(-81.152481, -77.858146, 0), V(-81.21495, -77.790497, 0), V(-81.270252, -77.718299, 0), V(-81.316704, -77.641645, 0), V(-81.35526, -77.561249, 0), V(-81.3846, -77.476481, 0), V(-81.405424, -77.387823, 0), V(-81.418514, -77.295179, 0), V(-81.420228, -77.232082, 0), V(-81.421098, -77.200025, 0)], [4, 1, 1, 1, 1, 1, 1, 1, 1, 1, 1, 1, 1, 1, 1, 1, 4], [0, 1.05670511, 2.080379991, 3.077984906, 4.06214886, 5.038337365, 6.01289324, 7.01187578, 8.025460281, 9.038092164, 10.024533457, 11.000252242, 11.969694649, 12.940728589, 13.933144304, 14.949937299, 16], False, 3, [1, 1, 1, 1, 1, 1, 1, 1, 1, 1, 1, 1, 1, 1, 1, 1, 1, 1, 1], False),
], False)
sketch6.addConstraint([
    Sketcher.Constraint("Block", 8),
    Sketcher.Constraint("Block", 9),
    Sketcher.Constraint("Block", 10),
    Sketcher.Constraint("Block", 11),
    Sketcher.Constraint("Block", 12),
    Sketcher.Constraint("Block", 13),
    Sketcher.Constraint("Block", 14),
    Sketcher.Constraint("Block", 15),
    Sketcher.Constraint("Block", 16),
    Sketcher.Constraint("Block", 17),
    Sketcher.Constraint("Block", 22),
    Sketcher.Constraint("Block", 23),
    Sketcher.Constraint("Block", 24),
    Sketcher.Constraint("Block", 25),
    Sketcher.Constraint("Block", 27),
    Sketcher.Constraint("Block", 28),
    Sketcher.Constraint("Block", 29),
    Sketcher.Constraint("Block", 30),
    Sketcher.Constraint("Coincident", 0, 2, 1, 1),
    Sketcher.Constraint("Coincident", 1, 2, 2, 1),
    Sketcher.Constraint("Coincident", 2, 2, 3, 1),
    Sketcher.Constraint("Coincident", 3, 2, 4, 1),
    Sketcher.Constraint("Coincident", 4, 2, 5, 1),
    Sketcher.Constraint("Coincident", 5, 2, 6, 1),
    Sketcher.Constraint("Coincident", 6, 2, 7, 1),
    Sketcher.Constraint("Coincident", 7, 2, 0, 1),
    Sketcher.Constraint("Coincident", 18, 2, 19, 1),
    Sketcher.Constraint("Coincident", 19, 2, 20, 1),
    Sketcher.Constraint("Coincident", 20, 2, 21, 1),
    Sketcher.Constraint("Coincident", 21, 2, 22, 2),
    Sketcher.Constraint("Coincident", 25, 1, 26, 1),
    Sketcher.Constraint("Coincident", 26, 2, 18, 1),
    Sketcher.Constraint("Vertical", 0),
    Sketcher.Constraint("Horizontal", 1),
    Sketcher.Constraint("Vertical", 2),
    Sketcher.Constraint("Horizontal", 3),
    Sketcher.Constraint("Vertical", 4),
    Sketcher.Constraint("Horizontal", 5),
    Sketcher.Constraint("Vertical", 6),
    Sketcher.Constraint("Horizontal", 7),
    Sketcher.Constraint("Horizontal", 18),
    Sketcher.Constraint("Vertical", 19),
    Sketcher.Constraint("Horizontal", 20),
    Sketcher.Constraint("Vertical", 21),
    Sketcher.Constraint("Vertical", 26),
    Sketcher.Constraint("Horizontal", 1, 2, 4, 2),
    Sketcher.Constraint("Equal", 1, 5),
    Sketcher.Constraint("Equal", 3, 18),
    Sketcher.Constraint("DistanceY", 19, 1, 19, 2, Q("3.175 mm")),
    Sketcher.Constraint("DistanceY", 6, 2, 3, 2, Q("3.175 mm")),
    Sketcher.Constraint("DistanceX", 7, 2, 7, 1, Q("1.66891 mm")),
    Sketcher.Constraint("DistanceY", 0, 1, 0, 2, Q("0.325641 mm")),
    Sketcher.Constraint("DistanceY", 26, 2, 26, 1, Q("0.429312 mm")),
    Sketcher.Constraint("DistanceX", 1, 1, 1, 2, Q("0.691987 mm")),
    Sketcher.Constraint("DistanceX", 0, 2, -1, 1, Q("86.67206 mm")),
    Sketcher.Constraint("DistanceY", 5, 2, 21, 2, Q("2.428951 mm")),
])
pocket2 = body.newObject("PartDesign::Pocket", "Pocket001")
pocket2.Profile = sketch6
pocket2.Length = 1
pocket2.Reversed = True

sketch7 = body.newObject("Sketcher::SketchObject", "Sketch006")
sketch7.AttachmentSupport = (doc.getObject("XZ_Plane"), [""])
sketch7.MapMode = "FlatFace"
sketch7.addGeometry([
    Part.LineSegment(V(-129, 16, 0), V(-129, -34, 0)),
    Part.ArcOfCircle(Part.Circle(V(-134, -34, 0), V(0, 0, 1), 5), math.radians(180), math.radians(360)),
    Part.LineSegment(V(-139, -34, 0), V(-139, 16, 0)),
    Part.ArcOfCircle(Part.Circle(V(-134, 16, 0), V(0, 0, 1), 5), math.radians(0), math.radians(180)),
], False)
sketch7.addConstraint([
    Sketcher.Constraint("Tangent", 0, 2, 1, 2),
    Sketcher.Constraint("Tangent", 1, 1, 2, 1),
    Sketcher.Constraint("Tangent", 2, 2, 3, 2),
    Sketcher.Constraint("Tangent", 3, 1, 0, 1),
    Sketcher.Constraint("Vertical", 0),
    Sketcher.Constraint("Vertical", 2),
    Sketcher.Constraint("Radius", 1, Q("5 mm")),
    Sketcher.Constraint("DistanceY", 0, 2, 0, 1, Q("50 mm")),
    Sketcher.Constraint("DistanceX", 1, 3, -1, 1, Q("134.064382 mm")),
    Sketcher.Constraint("DistanceY", 1, 3, -1, 1, Q("34.114281 mm")),
])
pocket3 = body.newObject("PartDesign::Pocket", "Pocket002")
pocket3.Profile = sketch7
pocket3.Type = "ThroughAll"
pocket3.Reversed = True

doc.recompute()
